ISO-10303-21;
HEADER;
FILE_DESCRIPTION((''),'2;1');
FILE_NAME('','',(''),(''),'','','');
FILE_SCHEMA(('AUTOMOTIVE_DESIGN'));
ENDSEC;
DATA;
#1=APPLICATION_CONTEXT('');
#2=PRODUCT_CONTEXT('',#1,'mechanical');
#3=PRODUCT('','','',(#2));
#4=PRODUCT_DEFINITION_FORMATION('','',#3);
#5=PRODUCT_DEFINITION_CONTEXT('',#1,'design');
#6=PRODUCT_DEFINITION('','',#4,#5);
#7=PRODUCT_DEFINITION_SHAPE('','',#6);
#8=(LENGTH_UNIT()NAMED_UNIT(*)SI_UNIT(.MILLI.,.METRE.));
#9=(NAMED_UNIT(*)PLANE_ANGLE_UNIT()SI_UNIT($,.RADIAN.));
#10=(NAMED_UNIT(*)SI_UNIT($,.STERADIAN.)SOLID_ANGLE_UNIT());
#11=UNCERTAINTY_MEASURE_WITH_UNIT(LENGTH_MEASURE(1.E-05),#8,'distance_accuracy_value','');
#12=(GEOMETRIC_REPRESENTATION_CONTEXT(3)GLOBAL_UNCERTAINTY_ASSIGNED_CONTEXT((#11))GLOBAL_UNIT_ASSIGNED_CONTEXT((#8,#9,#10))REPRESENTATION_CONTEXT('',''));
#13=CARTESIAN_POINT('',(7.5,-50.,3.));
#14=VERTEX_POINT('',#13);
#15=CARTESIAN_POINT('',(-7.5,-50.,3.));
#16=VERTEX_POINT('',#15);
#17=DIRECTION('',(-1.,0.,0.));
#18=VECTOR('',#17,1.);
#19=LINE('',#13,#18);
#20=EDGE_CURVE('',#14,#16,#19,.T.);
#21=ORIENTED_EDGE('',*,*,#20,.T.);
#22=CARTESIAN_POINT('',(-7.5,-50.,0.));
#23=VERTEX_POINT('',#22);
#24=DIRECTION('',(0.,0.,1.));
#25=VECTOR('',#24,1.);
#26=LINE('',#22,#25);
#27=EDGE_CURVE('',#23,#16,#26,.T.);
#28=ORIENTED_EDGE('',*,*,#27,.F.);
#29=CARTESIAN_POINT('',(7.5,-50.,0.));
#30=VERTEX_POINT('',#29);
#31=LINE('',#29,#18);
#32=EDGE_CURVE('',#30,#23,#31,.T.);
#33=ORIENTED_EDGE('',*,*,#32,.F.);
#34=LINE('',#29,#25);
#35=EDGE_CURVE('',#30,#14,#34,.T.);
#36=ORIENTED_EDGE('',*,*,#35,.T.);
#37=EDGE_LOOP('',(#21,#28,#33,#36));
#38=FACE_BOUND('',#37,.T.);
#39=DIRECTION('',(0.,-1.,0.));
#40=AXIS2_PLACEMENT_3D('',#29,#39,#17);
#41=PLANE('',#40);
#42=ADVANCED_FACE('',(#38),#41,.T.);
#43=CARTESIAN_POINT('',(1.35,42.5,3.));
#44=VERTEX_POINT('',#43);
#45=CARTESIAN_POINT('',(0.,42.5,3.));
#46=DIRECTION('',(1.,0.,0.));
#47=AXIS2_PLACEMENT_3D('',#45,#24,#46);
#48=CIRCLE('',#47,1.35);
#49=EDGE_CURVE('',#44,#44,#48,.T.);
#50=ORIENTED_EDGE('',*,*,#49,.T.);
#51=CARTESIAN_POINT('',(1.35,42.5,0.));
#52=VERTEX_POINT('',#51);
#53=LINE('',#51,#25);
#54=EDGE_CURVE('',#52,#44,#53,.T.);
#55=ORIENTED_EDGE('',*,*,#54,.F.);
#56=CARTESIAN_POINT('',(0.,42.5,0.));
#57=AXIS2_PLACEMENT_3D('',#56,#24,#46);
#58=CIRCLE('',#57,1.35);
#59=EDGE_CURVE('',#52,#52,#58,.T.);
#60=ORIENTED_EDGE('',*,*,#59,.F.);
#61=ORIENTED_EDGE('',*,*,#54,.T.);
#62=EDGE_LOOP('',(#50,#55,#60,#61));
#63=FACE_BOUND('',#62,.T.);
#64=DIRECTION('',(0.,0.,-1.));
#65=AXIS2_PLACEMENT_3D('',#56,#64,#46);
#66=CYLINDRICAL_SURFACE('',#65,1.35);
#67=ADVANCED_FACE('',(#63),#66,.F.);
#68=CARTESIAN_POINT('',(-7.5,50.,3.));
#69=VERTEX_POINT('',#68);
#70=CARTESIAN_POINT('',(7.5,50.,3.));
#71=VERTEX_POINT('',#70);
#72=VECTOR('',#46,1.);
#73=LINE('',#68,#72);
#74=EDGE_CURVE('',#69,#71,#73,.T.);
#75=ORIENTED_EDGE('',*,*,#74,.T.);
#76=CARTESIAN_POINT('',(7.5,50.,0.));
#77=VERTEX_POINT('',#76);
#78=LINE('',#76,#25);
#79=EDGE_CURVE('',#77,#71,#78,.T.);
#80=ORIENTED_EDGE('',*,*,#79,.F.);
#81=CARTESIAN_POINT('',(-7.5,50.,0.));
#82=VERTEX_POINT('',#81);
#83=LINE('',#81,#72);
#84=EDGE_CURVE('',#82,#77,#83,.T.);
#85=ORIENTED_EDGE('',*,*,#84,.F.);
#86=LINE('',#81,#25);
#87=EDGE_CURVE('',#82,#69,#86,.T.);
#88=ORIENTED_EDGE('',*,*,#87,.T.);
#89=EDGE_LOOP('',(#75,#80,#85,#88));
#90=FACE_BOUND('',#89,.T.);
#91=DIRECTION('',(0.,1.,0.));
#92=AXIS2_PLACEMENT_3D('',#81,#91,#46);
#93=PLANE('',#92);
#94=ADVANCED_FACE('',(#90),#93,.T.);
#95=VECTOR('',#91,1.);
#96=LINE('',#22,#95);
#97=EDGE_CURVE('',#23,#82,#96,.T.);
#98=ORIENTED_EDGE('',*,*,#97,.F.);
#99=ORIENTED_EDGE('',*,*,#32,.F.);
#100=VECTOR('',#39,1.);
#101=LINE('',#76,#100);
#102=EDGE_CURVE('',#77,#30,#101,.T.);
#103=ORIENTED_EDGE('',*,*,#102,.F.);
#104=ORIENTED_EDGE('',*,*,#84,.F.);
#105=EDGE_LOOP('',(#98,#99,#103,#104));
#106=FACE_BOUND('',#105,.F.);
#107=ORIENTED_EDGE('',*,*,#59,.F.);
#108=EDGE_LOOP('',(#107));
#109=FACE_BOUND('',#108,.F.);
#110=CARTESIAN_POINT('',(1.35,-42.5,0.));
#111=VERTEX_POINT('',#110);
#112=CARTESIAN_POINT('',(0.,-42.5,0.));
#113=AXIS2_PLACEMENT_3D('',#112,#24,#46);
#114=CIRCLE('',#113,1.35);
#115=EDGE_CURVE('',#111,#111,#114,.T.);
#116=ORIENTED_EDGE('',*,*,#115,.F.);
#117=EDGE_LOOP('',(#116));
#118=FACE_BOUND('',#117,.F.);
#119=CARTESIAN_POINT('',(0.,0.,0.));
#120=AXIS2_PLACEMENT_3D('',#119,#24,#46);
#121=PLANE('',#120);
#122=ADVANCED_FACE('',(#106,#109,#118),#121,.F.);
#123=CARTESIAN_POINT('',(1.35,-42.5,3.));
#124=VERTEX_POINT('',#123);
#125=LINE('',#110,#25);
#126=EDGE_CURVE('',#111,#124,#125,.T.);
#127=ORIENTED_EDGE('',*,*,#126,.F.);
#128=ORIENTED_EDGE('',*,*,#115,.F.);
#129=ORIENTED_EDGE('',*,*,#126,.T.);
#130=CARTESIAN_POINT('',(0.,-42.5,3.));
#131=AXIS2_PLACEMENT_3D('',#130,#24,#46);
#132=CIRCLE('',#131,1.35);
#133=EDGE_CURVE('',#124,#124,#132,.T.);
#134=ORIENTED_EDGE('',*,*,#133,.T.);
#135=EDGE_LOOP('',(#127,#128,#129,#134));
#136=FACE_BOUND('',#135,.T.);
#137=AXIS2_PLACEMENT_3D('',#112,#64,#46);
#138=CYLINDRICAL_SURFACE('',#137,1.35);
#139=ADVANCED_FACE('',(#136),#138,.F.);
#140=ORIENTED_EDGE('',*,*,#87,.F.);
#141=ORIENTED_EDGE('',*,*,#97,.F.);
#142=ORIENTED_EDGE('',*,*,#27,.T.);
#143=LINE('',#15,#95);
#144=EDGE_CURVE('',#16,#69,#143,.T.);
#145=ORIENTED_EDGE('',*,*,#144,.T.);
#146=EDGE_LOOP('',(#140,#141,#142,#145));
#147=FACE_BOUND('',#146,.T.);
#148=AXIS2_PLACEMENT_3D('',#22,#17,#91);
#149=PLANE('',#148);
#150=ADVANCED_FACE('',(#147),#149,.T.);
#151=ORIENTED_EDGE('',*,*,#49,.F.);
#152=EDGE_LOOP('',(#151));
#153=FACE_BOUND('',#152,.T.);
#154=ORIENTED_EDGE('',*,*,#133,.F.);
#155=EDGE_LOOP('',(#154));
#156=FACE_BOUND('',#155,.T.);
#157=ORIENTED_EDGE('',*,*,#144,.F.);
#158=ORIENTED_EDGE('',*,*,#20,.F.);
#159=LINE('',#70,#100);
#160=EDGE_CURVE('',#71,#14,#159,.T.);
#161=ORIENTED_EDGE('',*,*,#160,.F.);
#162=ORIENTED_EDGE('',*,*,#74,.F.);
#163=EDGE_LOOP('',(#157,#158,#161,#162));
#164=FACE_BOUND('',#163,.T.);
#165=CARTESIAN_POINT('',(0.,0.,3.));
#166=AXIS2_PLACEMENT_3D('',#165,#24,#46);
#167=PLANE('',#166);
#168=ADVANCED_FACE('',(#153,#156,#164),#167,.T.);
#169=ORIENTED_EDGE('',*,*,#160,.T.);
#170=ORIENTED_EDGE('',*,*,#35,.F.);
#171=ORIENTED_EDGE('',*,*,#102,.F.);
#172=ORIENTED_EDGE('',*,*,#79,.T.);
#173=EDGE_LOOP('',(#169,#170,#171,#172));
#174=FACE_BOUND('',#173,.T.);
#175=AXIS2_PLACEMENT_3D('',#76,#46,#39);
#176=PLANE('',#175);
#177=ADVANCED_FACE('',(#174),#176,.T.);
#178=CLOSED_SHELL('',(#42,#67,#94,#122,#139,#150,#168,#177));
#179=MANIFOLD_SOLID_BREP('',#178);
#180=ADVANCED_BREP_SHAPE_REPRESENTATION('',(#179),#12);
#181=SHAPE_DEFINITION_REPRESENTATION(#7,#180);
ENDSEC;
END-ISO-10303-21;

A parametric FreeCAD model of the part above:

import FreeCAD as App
import Part
import Sketcher

V = App.Vector

doc = App.newDocument("Part")
body = doc.addObject("PartDesign::Body", "Body")

sketch1 = doc.addObject("Sketcher::SketchObject", "Sketch")
body.addObject(sketch1)
sketch1.AttachmentSupport = (doc.XY_Plane, [""])
sketch1.MapMode = "FlatFace"
sketch1.addGeometry([
    Part.LineSegment(V(7.5, 50, 0), V(-7.5, 50, 0)),
    Part.LineSegment(V(-7.5, 50, 0), V(-7.5, -50, 0)),
    Part.LineSegment(V(-7.5, -50, 0), V(7.5, -50, 0)),
    Part.LineSegment(V(7.5, -50, 0), V(7.5, 50, 0)),
    Part.Circle(V(0, -42.5, 0), V(0, 0, 1), 1.35),
    Part.Circle(V(0, 42.5, 0), V(0, 0, 1), 1.35),
], False)
sketch1.addConstraint([
    Sketcher.Constraint("Coincident", 0, 2, 1, 1),
    Sketcher.Constraint("Coincident", 1, 2, 2, 1),
    Sketcher.Constraint("Coincident", 2, 2, 3, 1),
    Sketcher.Constraint("Coincident", 3, 2, 0, 1),
    Sketcher.Constraint("Horizontal", 0),
    Sketcher.Constraint("Vertical", 1),
    Sketcher.Constraint("Horizontal", 2),
    Sketcher.Constraint("Vertical", 3),
    Sketcher.Constraint("Equal", 4, 5),
    Sketcher.Constraint("Symmetric", 4, 3, 5, 3, -1, 1),
    Sketcher.Constraint("Symmetric", 0, 2, 2, 2, -1, 1),
    Sketcher.Constraint("PointOnObject", 4, 3, -2),
    Sketcher.Constraint("Diameter", 4, 2.7),
    Sketcher.Constraint("DistanceX", 0, 2, 0, 1, 15.0),
    Sketcher.Constraint("DistanceY", 1, 2, 1, 1, 100.0),
    Sketcher.Constraint("DistanceY", 5, 3, 0, 2, 7.5),
])
pad1 = doc.addObject("PartDesign::Pad", "Pad")
body.addObject(pad1)
pad1.Profile = sketch1
pad1.Length = 3

doc.recompute()
